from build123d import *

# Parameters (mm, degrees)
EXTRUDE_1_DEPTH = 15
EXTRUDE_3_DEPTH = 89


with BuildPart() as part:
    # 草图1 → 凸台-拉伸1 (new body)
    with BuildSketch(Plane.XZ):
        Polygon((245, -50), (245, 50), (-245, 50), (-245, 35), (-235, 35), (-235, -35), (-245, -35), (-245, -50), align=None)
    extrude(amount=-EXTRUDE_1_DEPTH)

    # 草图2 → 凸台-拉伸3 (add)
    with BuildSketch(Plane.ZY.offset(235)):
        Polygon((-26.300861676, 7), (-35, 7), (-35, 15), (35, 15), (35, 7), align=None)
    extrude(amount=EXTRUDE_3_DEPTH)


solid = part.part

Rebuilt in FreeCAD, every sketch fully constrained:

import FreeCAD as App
import Part
import Sketcher
Q = App.Units.Quantity


def add_polygon(sketch, points):
    """Adds a closed chain of lines whose ends are joined by coincident constraints."""
    first, n = sketch.GeometryCount, len(points)
    for a, b in zip(points, points[1:] + points[:1]):
        sketch.addGeometry(Part.LineSegment(App.Vector(*a, 0), App.Vector(*b, 0)), False)
    for i in range(n):
        sketch.addConstraint(Sketcher.Constraint("Coincident", first + i, 2, first + (i + 1) % n, 1))

doc = App.newDocument("Part")
params = doc.addObject("Spreadsheet::Sheet", "Params")
for row, (alias, value) in enumerate([
    ("sketch1_width", "490 mm"),
    ("sketch1_width2", "10 mm"),
    ("sketch1_height", "100 mm"),
    ("sketch1_height2", "15 mm"),
    ("pad1_length", "15 mm"),
    ("sketch2_width", "8 mm"),
    ("sketch2_height", "70 mm"),
    ("pad2_length", "89 mm"),
], start=1):
    params.set(f"A{row}", alias)
    params.set(f"B{row}", "=" + value)
    params.setAlias(f"B{row}", alias)

body = doc.addObject("PartDesign::Body", "Body")

# Sketch on XZ plane
sketch1 = body.newObject("Sketcher::SketchObject", "Sketch")
sketch1.AttachmentSupport = (doc.getObject("XZ_Plane"), [""])
sketch1.MapMode = "FlatFace"
add_polygon(sketch1, [(245, -50), (245, 50), (-245, 50), (-245, 35), (-235, 35), (-235, -35), (-245, -35), (-245, -50)])  # lines 0-7
sketch1.addConstraint([
    Sketcher.Constraint("Vertical", 0),
    Sketcher.Constraint("Horizontal", 1),
    Sketcher.Constraint("Vertical", 2),
    Sketcher.Constraint("Horizontal", 3),
    Sketcher.Constraint("Vertical", 4),
    Sketcher.Constraint("Horizontal", 5),
    Sketcher.Constraint("Vertical", 6),
    Sketcher.Constraint("Horizontal", 7),
    Sketcher.Constraint("Symmetric", 0, 2, 6, 2, -1, 1),
    Sketcher.Constraint("Symmetric", 2, 2, 5, 2, -1),
    Sketcher.Constraint("DistanceX", 1, 2, 1, 1, Q("490 mm")),
    Sketcher.Constraint("DistanceX", 3, 1, 3, 2, Q("10 mm")),
    Sketcher.Constraint("DistanceY", 0, 1, 0, 2, Q("100 mm")),
    Sketcher.Constraint("DistanceY", 2, 2, 2, 1, Q("15 mm")),
])
sketch1.setExpression("Constraints[18]", "Params.sketch1_width")
sketch1.setExpression("Constraints[19]", "Params.sketch1_width2")
sketch1.setExpression("Constraints[20]", "Params.sketch1_height")
sketch1.setExpression("Constraints[21]", "Params.sketch1_height2")
pad1 = body.newObject("PartDesign::Pad", "Pad")
pad1.Profile = sketch1
pad1.setExpression("Length", "Params.pad1_length")
pad1.Reversed = True

# Sketch on YZ plane
sketch2 = body.newObject("Sketcher::SketchObject", "Sketch001")
sketch2.AttachmentSupport = (doc.getObject("YZ_Plane"), [""])
sketch2.MapMode = "FlatFace"
sketch2.AttachmentOffset = App.Placement(App.Vector(0, 0, -235), App.Rotation())
add_polygon(sketch2, [(7, -35), (7, 35), (15, 35), (15, -35)])  # lines 0-3
sketch2.addConstraint([
    Sketcher.Constraint("Vertical", 0),
    Sketcher.Constraint("Horizontal", 1),
    Sketcher.Constraint("Vertical", 2),
    Sketcher.Constraint("Horizontal", 3),
    Sketcher.Constraint("DistanceX", 1, 1, 1, 2, Q("8 mm")),
    Sketcher.Constraint("DistanceY", 0, 1, 0, 2, Q("70 mm")),
    Sketcher.Constraint("DistanceX", -1, 1, 0, 2, Q("7 mm")),
    Sketcher.Constraint("DistanceY", -1, 1, 0, 2, Q("35 mm")),
])
sketch2.setExpression("Constraints[8]", "Params.sketch2_width")
sketch2.setExpression("Constraints[9]", "Params.sketch2_height")
pad2 = body.newObject("PartDesign::Pad", "Pad001")
pad2.Profile = sketch2
pad2.setExpression("Length", "Params.pad2_length")
pad2.Reversed = True

doc.recompute()
